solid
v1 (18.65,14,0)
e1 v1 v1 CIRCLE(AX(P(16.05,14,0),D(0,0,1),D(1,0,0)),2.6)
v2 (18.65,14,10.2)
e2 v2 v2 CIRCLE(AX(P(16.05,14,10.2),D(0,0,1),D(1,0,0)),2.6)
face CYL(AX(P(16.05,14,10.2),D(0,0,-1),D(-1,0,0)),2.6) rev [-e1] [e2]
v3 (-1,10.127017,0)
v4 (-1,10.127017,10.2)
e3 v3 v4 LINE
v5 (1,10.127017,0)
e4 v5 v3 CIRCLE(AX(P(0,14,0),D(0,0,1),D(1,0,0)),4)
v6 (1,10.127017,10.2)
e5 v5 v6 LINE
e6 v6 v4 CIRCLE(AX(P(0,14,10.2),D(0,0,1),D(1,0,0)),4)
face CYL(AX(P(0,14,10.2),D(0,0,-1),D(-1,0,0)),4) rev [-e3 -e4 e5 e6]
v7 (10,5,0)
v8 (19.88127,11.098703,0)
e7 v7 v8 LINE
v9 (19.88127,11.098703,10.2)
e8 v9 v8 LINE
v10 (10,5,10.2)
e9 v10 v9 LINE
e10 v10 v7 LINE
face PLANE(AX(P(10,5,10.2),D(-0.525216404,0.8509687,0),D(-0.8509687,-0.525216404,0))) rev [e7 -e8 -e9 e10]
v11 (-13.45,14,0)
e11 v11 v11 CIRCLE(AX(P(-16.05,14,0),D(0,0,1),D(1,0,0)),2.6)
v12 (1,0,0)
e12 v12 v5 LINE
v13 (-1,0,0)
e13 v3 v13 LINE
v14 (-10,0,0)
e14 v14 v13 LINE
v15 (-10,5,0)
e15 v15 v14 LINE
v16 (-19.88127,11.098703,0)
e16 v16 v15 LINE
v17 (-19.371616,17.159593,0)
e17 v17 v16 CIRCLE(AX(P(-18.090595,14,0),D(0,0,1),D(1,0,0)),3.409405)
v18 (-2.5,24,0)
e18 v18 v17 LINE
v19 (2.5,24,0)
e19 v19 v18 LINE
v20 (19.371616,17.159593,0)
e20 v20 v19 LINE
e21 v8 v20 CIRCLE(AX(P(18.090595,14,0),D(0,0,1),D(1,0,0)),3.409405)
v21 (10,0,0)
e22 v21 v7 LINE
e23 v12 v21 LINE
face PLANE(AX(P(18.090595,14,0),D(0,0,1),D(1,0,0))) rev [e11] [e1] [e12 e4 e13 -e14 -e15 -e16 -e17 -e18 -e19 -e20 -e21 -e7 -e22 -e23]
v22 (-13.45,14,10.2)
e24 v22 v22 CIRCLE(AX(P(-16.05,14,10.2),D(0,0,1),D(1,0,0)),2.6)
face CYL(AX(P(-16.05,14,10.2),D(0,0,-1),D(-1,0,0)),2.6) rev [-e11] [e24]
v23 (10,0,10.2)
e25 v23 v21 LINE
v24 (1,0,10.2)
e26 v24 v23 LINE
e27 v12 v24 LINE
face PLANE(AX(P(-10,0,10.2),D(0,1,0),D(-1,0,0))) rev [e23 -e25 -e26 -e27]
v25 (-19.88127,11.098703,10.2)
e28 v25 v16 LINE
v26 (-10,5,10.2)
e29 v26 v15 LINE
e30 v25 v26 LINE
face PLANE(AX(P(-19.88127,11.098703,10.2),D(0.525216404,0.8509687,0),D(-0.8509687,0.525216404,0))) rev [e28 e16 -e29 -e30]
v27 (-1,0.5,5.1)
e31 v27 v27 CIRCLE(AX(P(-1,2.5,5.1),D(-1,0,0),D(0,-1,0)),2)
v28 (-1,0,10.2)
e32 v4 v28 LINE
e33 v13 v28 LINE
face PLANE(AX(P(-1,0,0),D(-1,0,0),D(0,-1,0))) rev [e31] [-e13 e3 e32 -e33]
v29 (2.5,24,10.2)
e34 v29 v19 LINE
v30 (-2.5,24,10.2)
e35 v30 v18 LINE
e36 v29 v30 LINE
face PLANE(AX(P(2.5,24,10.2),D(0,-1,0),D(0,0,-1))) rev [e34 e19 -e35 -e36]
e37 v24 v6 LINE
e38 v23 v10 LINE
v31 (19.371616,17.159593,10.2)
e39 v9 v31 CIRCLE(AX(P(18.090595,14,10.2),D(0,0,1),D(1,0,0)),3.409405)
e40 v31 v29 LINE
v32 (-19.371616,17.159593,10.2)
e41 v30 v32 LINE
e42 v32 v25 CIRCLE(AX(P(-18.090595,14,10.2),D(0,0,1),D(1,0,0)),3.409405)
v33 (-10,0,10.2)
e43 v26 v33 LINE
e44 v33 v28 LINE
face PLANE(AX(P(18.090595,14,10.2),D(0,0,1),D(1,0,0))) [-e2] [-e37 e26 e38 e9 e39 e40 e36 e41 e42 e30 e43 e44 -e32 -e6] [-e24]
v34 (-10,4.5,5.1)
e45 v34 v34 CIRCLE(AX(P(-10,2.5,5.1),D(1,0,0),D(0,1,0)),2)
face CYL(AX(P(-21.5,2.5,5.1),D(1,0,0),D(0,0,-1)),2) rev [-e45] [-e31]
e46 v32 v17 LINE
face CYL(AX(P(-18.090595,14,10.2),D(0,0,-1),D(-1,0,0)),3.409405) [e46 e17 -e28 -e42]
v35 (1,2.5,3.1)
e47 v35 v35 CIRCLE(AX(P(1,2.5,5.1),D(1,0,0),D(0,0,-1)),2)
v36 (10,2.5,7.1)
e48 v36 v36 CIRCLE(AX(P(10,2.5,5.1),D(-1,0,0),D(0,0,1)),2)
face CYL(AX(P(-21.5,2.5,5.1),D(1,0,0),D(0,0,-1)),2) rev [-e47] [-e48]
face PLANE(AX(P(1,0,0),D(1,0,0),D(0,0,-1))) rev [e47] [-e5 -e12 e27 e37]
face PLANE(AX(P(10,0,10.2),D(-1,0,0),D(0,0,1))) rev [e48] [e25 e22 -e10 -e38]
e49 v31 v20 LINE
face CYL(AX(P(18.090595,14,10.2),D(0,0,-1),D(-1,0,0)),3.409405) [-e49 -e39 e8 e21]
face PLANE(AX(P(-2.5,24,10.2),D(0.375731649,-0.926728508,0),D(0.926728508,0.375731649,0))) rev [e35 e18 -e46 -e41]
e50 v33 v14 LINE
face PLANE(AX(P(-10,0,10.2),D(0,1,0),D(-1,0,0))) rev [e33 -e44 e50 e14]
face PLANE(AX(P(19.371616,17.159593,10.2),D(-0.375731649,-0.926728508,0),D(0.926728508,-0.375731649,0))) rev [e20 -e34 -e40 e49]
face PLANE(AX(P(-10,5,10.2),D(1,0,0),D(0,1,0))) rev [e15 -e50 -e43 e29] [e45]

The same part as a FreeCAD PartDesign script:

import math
import FreeCAD as App
import Part
import Sketcher
from FreeCAD import Vector

doc = App.newDocument("Part")
body = doc.addObject("PartDesign::Body", "Body")

sketch1 = doc.addObject("Sketcher::SketchObject", "Sketch")
body.addObject(sketch1)
sketch1.AttachmentSupport = (doc.XY_Plane, [""])
sketch1.MapMode = "FlatFace"
sketch1.addGeometry(Part.LineSegment(Vector(-10, 0, 0), Vector(10, 0, 0)), False)
sketch1.addGeometry(Part.LineSegment(Vector(10, 0, 0), Vector(10, 5, 0)), False)
sketch1.addGeometry(Part.LineSegment(Vector(10, 5, 0), Vector(19.9, 11.1, 0)), False)
sketch1.addGeometry(Part.ArcOfCircle(Part.Circle(Vector(18.1, 14, 0), Vector(0, 0, 1), 3.4), math.radians(-58), math.radians(68)), False)
sketch1.addGeometry(Part.LineSegment(Vector(19.4, 17.2, 0), Vector(2.5, 24, 0)), False)
sketch1.addGeometry(Part.LineSegment(Vector(2.5, 24, 0), Vector(-2.5, 24, 0)), False)
sketch1.addGeometry(Part.LineSegment(Vector(-2.5, 24, 0), Vector(-19.4, 17.2, 0)), False)
sketch1.addGeometry(Part.ArcOfCircle(Part.Circle(Vector(-18.1, 14, 0), Vector(0, 0, 1), 3.4), math.radians(112), math.radians(238)), False)
sketch1.addGeometry(Part.LineSegment(Vector(-19.9, 11.1, 0), Vector(-10, 5, 0)), False)
sketch1.addGeometry(Part.LineSegment(Vector(-10, 5, 0), Vector(-10, 0, 0)), False)
sketch1.addGeometry(Part.Circle(Vector(-16.1, 14, 0), Vector(0, 0, 1), 2.6), False)
sketch1.addGeometry(Part.Circle(Vector(0, 14, 0), Vector(0, 0, 1), 4), False)
sketch1.addGeometry(Part.Circle(Vector(16.1, 14, 0), Vector(0, 0, 1), 2.6), False)
sketch1.addConstraint(Sketcher.Constraint("Coincident", 0, 2, 1, 1))
sketch1.addConstraint(Sketcher.Constraint("Coincident", 1, 2, 2, 1))
sketch1.addConstraint(Sketcher.Constraint("Tangent", 2, 2, 3, 1))
sketch1.addConstraint(Sketcher.Constraint("Tangent", 3, 2, 4, 1))
sketch1.addConstraint(Sketcher.Constraint("Coincident", 4, 2, 5, 1))
sketch1.addConstraint(Sketcher.Constraint("Coincident", 5, 2, 6, 1))
sketch1.addConstraint(Sketcher.Constraint("Tangent", 6, 2, 7, 1))
sketch1.addConstraint(Sketcher.Constraint("Tangent", 7, 2, 8, 1))
sketch1.addConstraint(Sketcher.Constraint("Coincident", 8, 2, 9, 1))
sketch1.addConstraint(Sketcher.Constraint("Coincident", 9, 2, 0, 1))
sketch1.addConstraint(Sketcher.Constraint("Horizontal", 0))
sketch1.addConstraint(Sketcher.Constraint("Vertical", 1))
sketch1.addConstraint(Sketcher.Constraint("Horizontal", 5))
sketch1.addConstraint(Sketcher.Constraint("Vertical", 9))
sketch1.addConstraint(Sketcher.Constraint("Equal", 3, 7))
sketch1.addConstraint(Sketcher.Constraint("Equal", 10, 12))
sketch1.addConstraint(Sketcher.Constraint("Symmetric", 0, 2, 9, 2, -1, 1))
sketch1.addConstraint(Sketcher.Constraint("Symmetric", 3, 3, 7, 3, -2))
sketch1.addConstraint(Sketcher.Constraint("Symmetric", 10, 3, 12, 3, -2))
sketch1.addConstraint(Sketcher.Constraint("PointOnObject", 11, 3, -2))
sketch1.addConstraint(Sketcher.Constraint("Horizontal", 7, 3, 10, 3))
sketch1.addConstraint(Sketcher.Constraint("Horizontal", 10, 3, 11, 3))
sketch1.addConstraint(Sketcher.Constraint("Horizontal", 3, 2, 6, 2))
sketch1.addConstraint(Sketcher.Constraint("Horizontal", 2, 2, 7, 2))
sketch1.addConstraint(Sketcher.Constraint("Equal", 5, 1))
sketch1.addConstraint(Sketcher.Constraint("Diameter", 11, 8.0))
sketch1.addConstraint(Sketcher.Constraint("Diameter", 10, 5.2))
sketch1.addConstraint(Sketcher.Constraint("DistanceX", 0, 1, 0, 2, 20.0))
sketch1.addConstraint(Sketcher.Constraint("DistanceX", 5, 2, 5, 1, 5.0))
sketch1.addConstraint(Sketcher.Constraint("DistanceY", -1, 1, 3, 3, 14.0))
sketch1.addConstraint(Sketcher.Constraint("DistanceY", -1, 1, 4, 2, 24.0))
sketch1.addConstraint(Sketcher.Constraint("DistanceX", 10, 3, 12, 3, 32.1))
sketch1.addConstraint(Sketcher.Constraint("Radius", 3, 3.409405))
sketch1.addConstraint(Sketcher.Constraint("Distance", 2, 11.611791))
pad1 = doc.addObject("PartDesign::Pad", "Pad")
body.addObject(pad1)
pad1.Profile = sketch1
pad1.Length = 10.2

sketch2 = doc.addObject("Sketcher::SketchObject", "Sketch001")
body.addObject(sketch2)
sketch2.AttachmentSupport = (doc.XY_Plane, [""])
sketch2.MapMode = "FlatFace"
sketch2.AttachmentOffset = App.Placement(Vector(0, 0, 10.2), App.Rotation())
sketch2.addGeometry(Part.LineSegment(Vector(-1, 10.1, 0), Vector(-1, 0, 0)), False)
sketch2.addGeometry(Part.LineSegment(Vector(-1, 0, 0), Vector(1, 0, 0)), False)
sketch2.addGeometry(Part.LineSegment(Vector(1, 0, 0), Vector(1, 10.1, 0)), False)
sketch2.addGeometry(Part.ArcOfCircle(Part.Circle(Vector(0, 14, 0), Vector(0, 0, 1), 4), math.radians(-104), math.radians(-76)), False)
sketch2.addConstraint(Sketcher.Constraint("Coincident", 0, 2, 1, 1))
sketch2.addConstraint(Sketcher.Constraint("Coincident", 1, 2, 2, 1))
sketch2.addConstraint(Sketcher.Constraint("Coincident", 2, 2, 3, 2))
sketch2.addConstraint(Sketcher.Constraint("Coincident", 3, 1, 0, 1))
sketch2.addConstraint(Sketcher.Constraint("Vertical", 0))
sketch2.addConstraint(Sketcher.Constraint("Horizontal", 1))
sketch2.addConstraint(Sketcher.Constraint("Vertical", 2))
sketch2.addConstraint(Sketcher.Constraint("Symmetric", 0, 2, 1, 2, -1, 1))
sketch2.addConstraint(Sketcher.Constraint("PointOnObject", 3, 3, -2))
sketch2.addConstraint(Sketcher.Constraint("Radius", 3, 4.0))
sketch2.addConstraint(Sketcher.Constraint("DistanceX", 1, 1, 1, 2, 2.0))
sketch2.addConstraint(Sketcher.Constraint("DistanceY", -1, 1, 3, 3, 14.0))
pocket1 = doc.addObject("PartDesign::Pocket", "Pocket")
body.addObject(pocket1)
pocket1.Profile = sketch2
pocket1.Type = "ThroughAll"

sketch3 = doc.addObject("Sketcher::SketchObject", "Sketch002")
body.addObject(sketch3)
sketch3.AttachmentSupport = (doc.YZ_Plane, [""])
sketch3.MapMode = "FlatFace"
sketch3.AttachmentOffset = App.Placement(Vector(0, 0, 10), App.Rotation())
sketch3.addGeometry(Part.Circle(Vector(2.5, 5.1, 0), Vector(0, 0, 1), 2), False)
sketch3.addConstraint(Sketcher.Constraint("Diameter", 0, 4.0))
sketch3.addConstraint(Sketcher.Constraint("DistanceX", -1, 1, 0, 3, 2.5))
sketch3.addConstraint(Sketcher.Constraint("DistanceY", -1, 1, 0, 3, 5.1))
pocket2 = doc.addObject("PartDesign::Pocket", "Pocket001")
body.addObject(pocket2)
pocket2.Profile = sketch3
pocket2.Type = "ThroughAll"
pocket2.Midplane = True

doc.recompute()
